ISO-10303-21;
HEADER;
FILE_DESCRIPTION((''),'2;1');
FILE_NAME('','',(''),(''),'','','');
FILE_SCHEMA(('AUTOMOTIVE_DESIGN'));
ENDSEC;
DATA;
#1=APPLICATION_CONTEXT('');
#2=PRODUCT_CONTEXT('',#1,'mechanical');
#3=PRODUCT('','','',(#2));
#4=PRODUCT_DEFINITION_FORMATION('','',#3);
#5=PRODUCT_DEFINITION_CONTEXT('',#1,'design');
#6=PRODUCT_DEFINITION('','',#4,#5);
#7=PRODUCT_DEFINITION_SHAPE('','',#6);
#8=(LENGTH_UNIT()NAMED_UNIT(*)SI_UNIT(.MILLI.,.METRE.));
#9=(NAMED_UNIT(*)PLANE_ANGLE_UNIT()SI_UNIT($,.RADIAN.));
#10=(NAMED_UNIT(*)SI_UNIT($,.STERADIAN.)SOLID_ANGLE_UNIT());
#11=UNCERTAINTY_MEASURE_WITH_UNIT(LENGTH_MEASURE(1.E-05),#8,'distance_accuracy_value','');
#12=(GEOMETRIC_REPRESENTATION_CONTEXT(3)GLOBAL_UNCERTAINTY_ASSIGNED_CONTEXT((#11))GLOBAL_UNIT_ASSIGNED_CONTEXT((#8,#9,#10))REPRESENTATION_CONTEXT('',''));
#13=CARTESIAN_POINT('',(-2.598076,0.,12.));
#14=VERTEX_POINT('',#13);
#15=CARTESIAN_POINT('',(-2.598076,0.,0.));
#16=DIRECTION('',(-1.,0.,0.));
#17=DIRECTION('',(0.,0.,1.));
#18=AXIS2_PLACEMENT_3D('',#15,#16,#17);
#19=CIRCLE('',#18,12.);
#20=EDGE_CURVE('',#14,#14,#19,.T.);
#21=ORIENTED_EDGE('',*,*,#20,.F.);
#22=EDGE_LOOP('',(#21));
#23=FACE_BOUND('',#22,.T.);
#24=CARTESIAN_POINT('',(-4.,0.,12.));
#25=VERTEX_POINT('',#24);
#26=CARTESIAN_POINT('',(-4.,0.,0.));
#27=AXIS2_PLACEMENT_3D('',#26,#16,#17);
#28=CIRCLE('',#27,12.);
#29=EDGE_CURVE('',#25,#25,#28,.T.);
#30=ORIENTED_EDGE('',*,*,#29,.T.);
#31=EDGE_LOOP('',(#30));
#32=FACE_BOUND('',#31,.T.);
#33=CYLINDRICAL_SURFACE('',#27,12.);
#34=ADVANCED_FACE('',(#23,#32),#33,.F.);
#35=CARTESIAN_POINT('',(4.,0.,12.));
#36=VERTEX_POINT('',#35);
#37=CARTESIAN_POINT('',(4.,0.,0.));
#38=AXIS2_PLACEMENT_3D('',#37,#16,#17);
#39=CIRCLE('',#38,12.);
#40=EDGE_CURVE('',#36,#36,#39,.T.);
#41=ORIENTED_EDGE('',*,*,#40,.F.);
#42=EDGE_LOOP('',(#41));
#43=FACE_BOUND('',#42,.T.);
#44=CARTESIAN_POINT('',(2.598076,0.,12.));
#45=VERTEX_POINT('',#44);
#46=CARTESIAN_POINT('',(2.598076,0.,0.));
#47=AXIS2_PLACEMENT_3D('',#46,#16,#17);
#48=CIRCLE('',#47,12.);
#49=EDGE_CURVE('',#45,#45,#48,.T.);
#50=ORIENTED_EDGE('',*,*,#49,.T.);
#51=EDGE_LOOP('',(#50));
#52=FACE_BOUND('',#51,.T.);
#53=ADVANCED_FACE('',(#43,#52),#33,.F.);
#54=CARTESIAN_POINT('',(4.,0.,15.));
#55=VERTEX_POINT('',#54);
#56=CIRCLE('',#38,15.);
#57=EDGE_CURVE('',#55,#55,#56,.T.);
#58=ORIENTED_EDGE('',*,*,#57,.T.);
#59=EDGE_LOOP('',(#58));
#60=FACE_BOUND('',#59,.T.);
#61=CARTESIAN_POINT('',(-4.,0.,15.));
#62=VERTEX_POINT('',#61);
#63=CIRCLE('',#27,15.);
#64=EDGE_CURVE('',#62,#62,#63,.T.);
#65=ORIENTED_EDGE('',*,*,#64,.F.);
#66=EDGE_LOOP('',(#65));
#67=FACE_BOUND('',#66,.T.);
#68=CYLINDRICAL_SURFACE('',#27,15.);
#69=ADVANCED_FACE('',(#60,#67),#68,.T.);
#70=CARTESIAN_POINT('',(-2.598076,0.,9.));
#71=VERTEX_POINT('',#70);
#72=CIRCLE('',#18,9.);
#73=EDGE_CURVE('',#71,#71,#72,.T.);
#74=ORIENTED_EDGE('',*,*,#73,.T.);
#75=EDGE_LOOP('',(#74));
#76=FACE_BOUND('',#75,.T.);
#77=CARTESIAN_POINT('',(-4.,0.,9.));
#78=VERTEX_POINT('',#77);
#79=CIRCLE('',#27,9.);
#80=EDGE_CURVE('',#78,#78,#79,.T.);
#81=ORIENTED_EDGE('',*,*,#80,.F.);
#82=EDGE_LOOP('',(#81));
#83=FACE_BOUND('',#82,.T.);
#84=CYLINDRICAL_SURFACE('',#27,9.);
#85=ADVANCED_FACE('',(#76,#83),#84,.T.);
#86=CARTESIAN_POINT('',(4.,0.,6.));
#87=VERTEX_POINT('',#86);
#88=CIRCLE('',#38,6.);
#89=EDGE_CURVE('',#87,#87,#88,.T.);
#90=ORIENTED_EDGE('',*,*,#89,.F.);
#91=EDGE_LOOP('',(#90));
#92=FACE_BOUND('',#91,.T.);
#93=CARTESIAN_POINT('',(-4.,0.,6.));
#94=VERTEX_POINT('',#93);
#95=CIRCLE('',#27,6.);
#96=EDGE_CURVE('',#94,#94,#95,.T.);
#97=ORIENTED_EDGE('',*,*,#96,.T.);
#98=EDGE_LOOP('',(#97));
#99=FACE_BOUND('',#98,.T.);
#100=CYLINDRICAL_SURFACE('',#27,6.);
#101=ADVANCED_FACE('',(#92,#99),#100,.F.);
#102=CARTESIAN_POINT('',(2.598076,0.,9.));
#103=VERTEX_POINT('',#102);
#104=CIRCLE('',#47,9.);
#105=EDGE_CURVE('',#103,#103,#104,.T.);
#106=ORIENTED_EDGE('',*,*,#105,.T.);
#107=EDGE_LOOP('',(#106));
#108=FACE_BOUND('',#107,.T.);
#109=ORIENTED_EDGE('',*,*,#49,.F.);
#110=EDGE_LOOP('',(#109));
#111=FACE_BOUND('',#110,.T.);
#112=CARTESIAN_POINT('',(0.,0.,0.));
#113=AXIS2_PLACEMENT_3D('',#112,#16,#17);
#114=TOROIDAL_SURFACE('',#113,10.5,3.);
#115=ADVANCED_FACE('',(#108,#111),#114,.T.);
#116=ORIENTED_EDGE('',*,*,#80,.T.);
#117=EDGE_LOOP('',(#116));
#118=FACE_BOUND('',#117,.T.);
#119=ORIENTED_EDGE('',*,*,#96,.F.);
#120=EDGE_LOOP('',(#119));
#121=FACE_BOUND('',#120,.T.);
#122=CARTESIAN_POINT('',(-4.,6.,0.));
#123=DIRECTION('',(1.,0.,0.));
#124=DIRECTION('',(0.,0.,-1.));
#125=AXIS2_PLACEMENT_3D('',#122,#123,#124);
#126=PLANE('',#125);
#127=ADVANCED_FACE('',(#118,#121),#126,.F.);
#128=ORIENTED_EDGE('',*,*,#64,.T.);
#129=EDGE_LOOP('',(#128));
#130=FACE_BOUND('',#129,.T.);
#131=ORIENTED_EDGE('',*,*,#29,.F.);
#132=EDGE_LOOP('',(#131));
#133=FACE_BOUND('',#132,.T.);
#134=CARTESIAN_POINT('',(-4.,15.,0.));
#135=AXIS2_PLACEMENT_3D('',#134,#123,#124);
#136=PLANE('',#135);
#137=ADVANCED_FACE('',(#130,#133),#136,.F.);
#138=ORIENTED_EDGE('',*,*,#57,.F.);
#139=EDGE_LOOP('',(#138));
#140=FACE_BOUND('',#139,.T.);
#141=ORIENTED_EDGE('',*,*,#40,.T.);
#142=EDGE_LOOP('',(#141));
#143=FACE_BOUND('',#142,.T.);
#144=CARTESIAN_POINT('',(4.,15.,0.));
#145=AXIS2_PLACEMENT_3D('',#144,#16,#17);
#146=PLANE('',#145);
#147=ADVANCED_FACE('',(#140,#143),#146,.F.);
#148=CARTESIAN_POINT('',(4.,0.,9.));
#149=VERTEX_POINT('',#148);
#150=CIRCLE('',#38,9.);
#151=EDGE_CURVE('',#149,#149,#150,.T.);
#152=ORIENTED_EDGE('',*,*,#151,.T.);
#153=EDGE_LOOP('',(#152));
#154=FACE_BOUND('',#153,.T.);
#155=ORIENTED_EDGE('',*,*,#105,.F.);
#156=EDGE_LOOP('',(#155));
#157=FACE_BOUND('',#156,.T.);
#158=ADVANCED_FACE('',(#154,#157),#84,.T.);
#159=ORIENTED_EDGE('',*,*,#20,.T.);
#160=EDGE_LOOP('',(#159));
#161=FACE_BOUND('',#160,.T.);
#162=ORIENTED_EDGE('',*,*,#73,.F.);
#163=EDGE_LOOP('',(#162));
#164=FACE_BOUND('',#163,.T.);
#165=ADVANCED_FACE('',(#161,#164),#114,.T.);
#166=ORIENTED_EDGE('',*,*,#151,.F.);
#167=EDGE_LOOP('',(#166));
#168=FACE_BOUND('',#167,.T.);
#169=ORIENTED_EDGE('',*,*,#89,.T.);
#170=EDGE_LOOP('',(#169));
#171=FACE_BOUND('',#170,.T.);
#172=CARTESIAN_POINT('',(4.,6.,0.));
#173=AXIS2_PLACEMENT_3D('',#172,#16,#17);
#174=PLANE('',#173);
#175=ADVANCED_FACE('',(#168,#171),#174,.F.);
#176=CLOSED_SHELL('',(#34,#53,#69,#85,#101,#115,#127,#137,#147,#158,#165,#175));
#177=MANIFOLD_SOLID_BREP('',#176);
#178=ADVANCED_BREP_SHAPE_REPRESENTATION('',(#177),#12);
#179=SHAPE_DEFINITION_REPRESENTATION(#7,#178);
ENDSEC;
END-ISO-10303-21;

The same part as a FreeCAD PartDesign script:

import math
import FreeCAD as App
import Part
import Sketcher
from FreeCAD import Vector
Q = App.Units.Quantity

doc = App.newDocument("Part")
body = doc.addObject("PartDesign::Body", "Body")

sketch1 = body.newObject("Sketcher::SketchObject", "Sketch")
sketch1.AttachmentSupport = (doc.getObject("XY_Plane"), [""])
sketch1.MapMode = "FlatFace"
sketch1.addGeometry(Part.LineSegment(Vector(-4, 6, 0), Vector(4, 6, 0)), False)
sketch1.addGeometry(Part.LineSegment(Vector(4, 6, 0), Vector(4, 9, 0)), False)
sketch1.addGeometry(Part.LineSegment(Vector(4, 9, 0), Vector(2.6, 9, 0)), False)
sketch1.addGeometry(Part.ArcOfCircle(Part.Circle(Vector(0, 10.5, 0), Vector(0, 0, 1), 3), math.radians(-30), math.radians(30)), False)
sketch1.addGeometry(Part.LineSegment(Vector(2.6, 12, 0), Vector(4, 12, 0)), False)
sketch1.addGeometry(Part.LineSegment(Vector(4, 12, 0), Vector(4, 15, 0)), False)
sketch1.addGeometry(Part.LineSegment(Vector(4, 15, 0), Vector(-4, 15, 0)), False)
sketch1.addGeometry(Part.LineSegment(Vector(-4, 15, 0), Vector(-4, 12, 0)), False)
sketch1.addGeometry(Part.LineSegment(Vector(-4, 12, 0), Vector(-2.6, 12, 0)), False)
sketch1.addGeometry(Part.ArcOfCircle(Part.Circle(Vector(0, 10.5, 0), Vector(0, 0, 1), 3), math.radians(150), math.radians(210)), False)
sketch1.addGeometry(Part.LineSegment(Vector(-2.6, 9, 0), Vector(-4, 9, 0)), False)
sketch1.addGeometry(Part.LineSegment(Vector(-4, 9, 0), Vector(-4, 6, 0)), False)
sketch1.addConstraint(Sketcher.Constraint("Coincident", 0, 2, 1, 1))
sketch1.addConstraint(Sketcher.Constraint("Coincident", 1, 2, 2, 1))
sketch1.addConstraint(Sketcher.Constraint("Coincident", 2, 2, 3, 1))
sketch1.addConstraint(Sketcher.Constraint("Coincident", 3, 2, 4, 1))
sketch1.addConstraint(Sketcher.Constraint("Coincident", 4, 2, 5, 1))
sketch1.addConstraint(Sketcher.Constraint("Coincident", 5, 2, 6, 1))
sketch1.addConstraint(Sketcher.Constraint("Coincident", 6, 2, 7, 1))
sketch1.addConstraint(Sketcher.Constraint("Coincident", 7, 2, 8, 1))
sketch1.addConstraint(Sketcher.Constraint("Coincident", 8, 2, 9, 1))
sketch1.addConstraint(Sketcher.Constraint("Coincident", 9, 2, 10, 1))
sketch1.addConstraint(Sketcher.Constraint("Coincident", 10, 2, 11, 1))
sketch1.addConstraint(Sketcher.Constraint("Coincident", 11, 2, 0, 1))
sketch1.addConstraint(Sketcher.Constraint("Horizontal", 0))
sketch1.addConstraint(Sketcher.Constraint("Vertical", 1))
sketch1.addConstraint(Sketcher.Constraint("Horizontal", 2))
sketch1.addConstraint(Sketcher.Constraint("Horizontal", 4))
sketch1.addConstraint(Sketcher.Constraint("Vertical", 5))
sketch1.addConstraint(Sketcher.Constraint("Horizontal", 6))
sketch1.addConstraint(Sketcher.Constraint("Vertical", 7))
sketch1.addConstraint(Sketcher.Constraint("Horizontal", 8))
sketch1.addConstraint(Sketcher.Constraint("Horizontal", 10))
sketch1.addConstraint(Sketcher.Constraint("Vertical", 11))
sketch1.addConstraint(Sketcher.Constraint("Coincident", 9, 3, 3, 3))
sketch1.addConstraint(Sketcher.Constraint("Equal", 3, 9))
sketch1.addConstraint(Sketcher.Constraint("Symmetric", 4, 2, 7, 2, -2))
sketch1.addConstraint(Sketcher.Constraint("Symmetric", 2, 2, 9, 2, -2))
sketch1.addConstraint(Sketcher.Constraint("Vertical", 2, 2, 3, 2))
sketch1.addConstraint(Sketcher.Constraint("Vertical", 1, 2, 4, 2))
sketch1.addConstraint(Sketcher.Constraint("Vertical", 7, 2, 10, 2))
sketch1.addConstraint(Sketcher.Constraint("Equal", 1, 5))
sketch1.addConstraint(Sketcher.Constraint("Radius", 3, Q("3 mm")))
sketch1.addConstraint(Sketcher.Constraint("DistanceX", 0, 1, 0, 2, Q("8 mm")))
sketch1.addConstraint(Sketcher.Constraint("DistanceY", 1, 1, 1, 2, Q("3 mm")))
sketch1.addConstraint(Sketcher.Constraint("DistanceY", -1, 1, 0, 2, Q("6 mm")))
sketch1.addConstraint(Sketcher.Constraint("DistanceY", -1, 1, 3, 2, Q("12 mm")))
revolution = body.newObject("PartDesign::Revolution", "Revolution")
revolution.Profile = sketch1
revolution.ReferenceAxis = (sketch1, ["H_Axis"])
revolution.Angle = 360

doc.recompute()
